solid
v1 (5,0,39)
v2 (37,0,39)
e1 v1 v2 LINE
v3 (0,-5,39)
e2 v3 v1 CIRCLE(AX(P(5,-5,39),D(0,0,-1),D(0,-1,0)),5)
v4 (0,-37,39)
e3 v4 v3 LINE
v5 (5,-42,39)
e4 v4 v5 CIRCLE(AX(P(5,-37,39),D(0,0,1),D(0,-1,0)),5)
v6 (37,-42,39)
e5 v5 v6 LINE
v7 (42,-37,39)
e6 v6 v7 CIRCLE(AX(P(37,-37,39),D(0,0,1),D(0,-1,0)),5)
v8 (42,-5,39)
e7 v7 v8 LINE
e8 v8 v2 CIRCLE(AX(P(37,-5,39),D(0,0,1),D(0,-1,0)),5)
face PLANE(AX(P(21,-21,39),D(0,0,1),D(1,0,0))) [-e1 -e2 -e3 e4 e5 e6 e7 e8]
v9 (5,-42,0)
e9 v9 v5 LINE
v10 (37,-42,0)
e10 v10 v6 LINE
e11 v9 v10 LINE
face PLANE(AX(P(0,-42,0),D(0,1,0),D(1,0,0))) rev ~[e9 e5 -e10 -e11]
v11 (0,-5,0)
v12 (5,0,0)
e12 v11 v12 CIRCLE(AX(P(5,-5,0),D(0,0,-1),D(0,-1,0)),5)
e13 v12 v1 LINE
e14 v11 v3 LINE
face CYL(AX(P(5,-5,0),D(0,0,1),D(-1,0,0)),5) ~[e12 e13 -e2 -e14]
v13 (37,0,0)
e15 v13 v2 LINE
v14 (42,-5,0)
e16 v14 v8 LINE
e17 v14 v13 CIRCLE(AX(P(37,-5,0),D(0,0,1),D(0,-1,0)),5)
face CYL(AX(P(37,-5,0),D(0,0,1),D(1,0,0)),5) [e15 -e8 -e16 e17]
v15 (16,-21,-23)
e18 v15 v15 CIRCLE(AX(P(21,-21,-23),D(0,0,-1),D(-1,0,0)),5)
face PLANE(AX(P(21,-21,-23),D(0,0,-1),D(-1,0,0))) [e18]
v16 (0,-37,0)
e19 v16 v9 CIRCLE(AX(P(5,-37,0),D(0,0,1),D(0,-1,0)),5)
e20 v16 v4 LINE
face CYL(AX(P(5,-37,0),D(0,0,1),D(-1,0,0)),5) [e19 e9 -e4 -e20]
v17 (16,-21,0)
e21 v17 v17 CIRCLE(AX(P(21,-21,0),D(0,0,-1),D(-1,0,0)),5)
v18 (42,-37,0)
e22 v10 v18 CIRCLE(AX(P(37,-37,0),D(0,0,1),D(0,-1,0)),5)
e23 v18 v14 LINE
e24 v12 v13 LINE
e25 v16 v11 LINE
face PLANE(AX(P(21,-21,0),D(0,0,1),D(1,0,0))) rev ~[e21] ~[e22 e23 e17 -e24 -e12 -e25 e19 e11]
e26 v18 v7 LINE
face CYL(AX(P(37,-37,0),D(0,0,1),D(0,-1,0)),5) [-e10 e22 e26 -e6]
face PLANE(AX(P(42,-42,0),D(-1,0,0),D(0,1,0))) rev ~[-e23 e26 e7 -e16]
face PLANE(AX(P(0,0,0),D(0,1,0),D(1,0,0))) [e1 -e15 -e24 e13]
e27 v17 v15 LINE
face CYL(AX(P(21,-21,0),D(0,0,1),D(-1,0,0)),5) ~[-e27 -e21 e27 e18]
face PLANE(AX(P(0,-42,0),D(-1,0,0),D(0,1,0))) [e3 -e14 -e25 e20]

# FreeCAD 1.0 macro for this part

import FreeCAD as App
import Part
import Sketcher
Q = App.Units.Quantity


def edges_at(feature, points):
    """Names of the edges that pass closest to the given points."""
    edges = feature.Shape.Edges
    near = lambda p: min(range(len(edges)), key=lambda i: edges[i].distToShape(Part.Vertex(*p))[0])
    return sorted({f"Edge{near(p) + 1}" for p in points})


def add_polygon(sketch, points):
    """Adds a closed chain of lines whose ends are joined by coincident constraints."""
    first, n = sketch.GeometryCount, len(points)
    for a, b in zip(points, points[1:] + points[:1]):
        sketch.addGeometry(Part.LineSegment(App.Vector(*a, 0), App.Vector(*b, 0)), False)
    for i in range(n):
        sketch.addConstraint(Sketcher.Constraint("Coincident", first + i, 2, first + (i + 1) % n, 1))

doc = App.newDocument("Part")
body = doc.addObject("PartDesign::Body", "Body")

sketch1 = doc.addObject("Sketcher::SketchObject", "Sketch")
body.addObject(sketch1)
sketch1.AttachmentSupport = (doc.XY_Plane, [""])
sketch1.MapMode = "FlatFace"
add_polygon(sketch1, [(0, 0), (0, -42), (42, -42), (42, 0)])
sketch1.addConstraint([
    Sketcher.Constraint("Vertical", 0),
    Sketcher.Constraint("Horizontal", 1),
    Sketcher.Constraint("Vertical", 2),
    Sketcher.Constraint("Horizontal", 3),
    Sketcher.Constraint("Coincident", 3, 2, -1, 1),
    Sketcher.Constraint("Equal", 3, 0),
    Sketcher.Constraint("DistanceX", 1, 1, 1, 2, Q("42 mm")),
])
pad1 = doc.addObject("PartDesign::Pad", "Pad")
body.addObject(pad1)
pad1.Profile = sketch1
pad1.Length = 39
doc.recompute()

fillet = doc.addObject("PartDesign::Fillet", "Fillet")
body.addObject(fillet)
fillet.Base = (pad1, edges_at(pad1, [
    (0, 0, 19.5),
    (42, 0, 19.5),
    (42, -42, 19.5),
    (0, -42, 19.5),
]))
fillet.Radius = 5

sketch2 = doc.addObject("Sketcher::SketchObject", "Sketch001")
body.addObject(sketch2)
sketch2.AttachmentSupport = (doc.XY_Plane, [""])
sketch2.MapMode = "FlatFace"
sketch2.addGeometry(Part.Circle(App.Vector(21, -21, 0), App.Vector(0, 0, 1), 5), False)
sketch2.addConstraint([
    Sketcher.Constraint("Diameter", 0, Q("10 mm")),
    Sketcher.Constraint("DistanceX", -1, 1, 0, 3, Q("21 mm")),
    Sketcher.Constraint("DistanceY", 0, 3, -1, 1, Q("21 mm")),
])
pad2 = doc.addObject("PartDesign::Pad", "Pad001")
body.addObject(pad2)
pad2.Profile = sketch2
pad2.Length = 23
pad2.Reversed = True

doc.recompute()
